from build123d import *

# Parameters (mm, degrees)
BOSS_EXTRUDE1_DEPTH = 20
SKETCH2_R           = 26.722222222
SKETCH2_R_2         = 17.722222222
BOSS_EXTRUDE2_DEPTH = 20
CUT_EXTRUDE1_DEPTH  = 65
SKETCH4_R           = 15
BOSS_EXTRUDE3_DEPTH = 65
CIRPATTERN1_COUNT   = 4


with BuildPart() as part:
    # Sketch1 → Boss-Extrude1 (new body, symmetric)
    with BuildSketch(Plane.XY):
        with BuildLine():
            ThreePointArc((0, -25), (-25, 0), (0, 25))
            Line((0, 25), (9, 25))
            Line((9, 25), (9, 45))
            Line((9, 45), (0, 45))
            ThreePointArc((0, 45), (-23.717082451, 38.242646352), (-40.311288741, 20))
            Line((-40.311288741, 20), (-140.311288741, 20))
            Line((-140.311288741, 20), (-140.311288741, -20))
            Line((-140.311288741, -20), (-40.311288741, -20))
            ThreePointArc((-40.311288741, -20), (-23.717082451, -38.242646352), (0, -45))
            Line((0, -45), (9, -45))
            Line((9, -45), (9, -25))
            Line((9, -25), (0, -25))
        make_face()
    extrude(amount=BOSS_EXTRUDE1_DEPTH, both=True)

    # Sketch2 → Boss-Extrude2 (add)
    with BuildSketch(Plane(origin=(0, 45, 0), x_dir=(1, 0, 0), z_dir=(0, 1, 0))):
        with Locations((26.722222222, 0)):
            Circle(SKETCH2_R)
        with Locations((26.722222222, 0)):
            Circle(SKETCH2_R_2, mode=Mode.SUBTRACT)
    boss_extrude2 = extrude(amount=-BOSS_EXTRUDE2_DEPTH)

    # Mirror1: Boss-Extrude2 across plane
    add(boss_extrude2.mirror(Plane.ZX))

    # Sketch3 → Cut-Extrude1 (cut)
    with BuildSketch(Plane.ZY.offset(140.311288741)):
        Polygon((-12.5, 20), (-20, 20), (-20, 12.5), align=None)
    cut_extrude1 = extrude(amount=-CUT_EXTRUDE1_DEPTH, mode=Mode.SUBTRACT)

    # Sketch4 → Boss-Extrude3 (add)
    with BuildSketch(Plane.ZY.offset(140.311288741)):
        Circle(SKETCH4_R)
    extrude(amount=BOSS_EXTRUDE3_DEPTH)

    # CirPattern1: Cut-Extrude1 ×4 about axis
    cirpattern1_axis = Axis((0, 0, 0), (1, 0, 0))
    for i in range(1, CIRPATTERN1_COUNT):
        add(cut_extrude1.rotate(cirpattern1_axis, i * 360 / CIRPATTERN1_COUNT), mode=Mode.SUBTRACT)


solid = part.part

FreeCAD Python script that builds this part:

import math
import FreeCAD as App
import Part
import Sketcher
from FreeCAD import Vector

doc = App.newDocument("Part")
body = doc.addObject("PartDesign::Body", "Body")

# Sketch on XY plane
sketch1 = body.newObject("Sketcher::SketchObject", "Sketch")
sketch1.AttachmentSupport = (doc.getObject("XY_Plane"), [""])
sketch1.MapMode = "FlatFace"
sketch1.addGeometry([
    Part.ArcOfCircle(Part.Circle(Vector(0, 0, 0), Vector(0, 0, 1), 25), math.radians(90), math.radians(270)),  # 0
    Part.LineSegment(Vector(0, 25, 0), Vector(9, 25, 0)),  # 1
    Part.LineSegment(Vector(9, 25, 0), Vector(9, 45, 0)),  # 2
    Part.LineSegment(Vector(9, 45, 0), Vector(0, 45, 0)),  # 3
    Part.ArcOfCircle(Part.Circle(Vector(0, 0, 0), Vector(0, 0, 1), 45), math.radians(90), math.radians(154)),  # 4
    Part.LineSegment(Vector(-40, 20, 0), Vector(-140, 20, 0)),  # 5
    Part.LineSegment(Vector(-140, 20, 0), Vector(-140, -20, 0)),  # 6
    Part.LineSegment(Vector(-140, -20, 0), Vector(-40, -20, 0)),  # 7
    Part.ArcOfCircle(Part.Circle(Vector(0, 0, 0), Vector(0, 0, 1), 45), math.radians(-154), math.radians(-90)),  # 8
    Part.LineSegment(Vector(0, -45, 0), Vector(9, -45, 0)),  # 9
    Part.LineSegment(Vector(9, -45, 0), Vector(9, -25, 0)),  # 10
    Part.LineSegment(Vector(9, -25, 0), Vector(0, -25, 0)),  # 11
], False)
sketch1.addConstraint([
    Sketcher.Constraint("Tangent", 0, 1, 1, 1),
    Sketcher.Constraint("Coincident", 1, 2, 2, 1),
    Sketcher.Constraint("Coincident", 2, 2, 3, 1),
    Sketcher.Constraint("Tangent", 3, 2, 4, 1),
    Sketcher.Constraint("Coincident", 4, 2, 5, 1),
    Sketcher.Constraint("Coincident", 5, 2, 6, 1),
    Sketcher.Constraint("Coincident", 6, 2, 7, 1),
    Sketcher.Constraint("Coincident", 7, 2, 8, 1),
    Sketcher.Constraint("Tangent", 8, 2, 9, 1),
    Sketcher.Constraint("Coincident", 9, 2, 10, 1),
    Sketcher.Constraint("Coincident", 10, 2, 11, 1),
    Sketcher.Constraint("Tangent", 11, 2, 0, 2),
    Sketcher.Constraint("Horizontal", 1),
    Sketcher.Constraint("Vertical", 2),
    Sketcher.Constraint("Horizontal", 3),
    Sketcher.Constraint("Horizontal", 5),
    Sketcher.Constraint("Vertical", 6),
    Sketcher.Constraint("Horizontal", 7),
    Sketcher.Constraint("Horizontal", 9),
    Sketcher.Constraint("Vertical", 10),
    Sketcher.Constraint("Horizontal", 11),
    Sketcher.Constraint("Coincident", 0, 3, -1, 1),
    Sketcher.Constraint("Coincident", 4, 3, -1, 1),
    Sketcher.Constraint("Coincident", 8, 3, -1, 1),
    Sketcher.Constraint("Equal", 4, 8),
    Sketcher.Constraint("Vertical", 4, 2, 7, 2),
    Sketcher.Constraint("Vertical", 2, 2, 9, 2),
    Sketcher.Constraint("Radius", 0, 25.0),
    Sketcher.Constraint("Radius", 4, 45.0),
    Sketcher.Constraint("DistanceX", 1, 1, 1, 2, 9.0),
    Sketcher.Constraint("DistanceX", 5, 2, 5, 1, 100.0),
    Sketcher.Constraint("DistanceY", 6, 2, 6, 1, 40.0),
])
pad1 = body.newObject("PartDesign::Pad", "Pad")
pad1.Profile = sketch1
pad1.Length = 40
pad1.Midplane = True

# Sketch on XZ plane
sketch2 = body.newObject("Sketcher::SketchObject", "Sketch001")
sketch2.AttachmentSupport = (doc.getObject("XZ_Plane"), [""])
sketch2.MapMode = "FlatFace"
sketch2.AttachmentOffset = App.Placement(Vector(0, 0, -45), App.Rotation())
sketch2.addGeometry([
    Part.Circle(Vector(27, 0, 0), Vector(0, 0, 1), 27),
    Part.Circle(Vector(27, 0, 0), Vector(0, 0, 1), 18),
], False)
sketch2.addConstraint([
    Sketcher.Constraint("Coincident", 1, 3, 0, 3),
    Sketcher.Constraint("PointOnObject", 0, 3, -1),
    Sketcher.Constraint("Diameter", 0, 53.444444),
    Sketcher.Constraint("Diameter", 1, 35.444444),
    Sketcher.Constraint("DistanceX", -1, 1, 0, 3, 26.722222),
])
pad2 = body.newObject("PartDesign::Pad", "Pad001")
pad2.Profile = sketch2
pad2.Length = 20
doc.recompute()

mirrored = body.newObject("PartDesign::Mirrored", "Mirrored")
mirrored.Originals = [pad2]
mirrored.MirrorPlane = (doc.getObject("XZ_Plane"), [""])
body.Tip = mirrored

# Sketch on YZ plane
sketch3 = body.newObject("Sketcher::SketchObject", "Sketch002")
sketch3.AttachmentSupport = (doc.getObject("YZ_Plane"), [""])
sketch3.MapMode = "FlatFace"
sketch3.AttachmentOffset = App.Placement(Vector(0, 0, -140.311289), App.Rotation())
sketch3.addGeometry([
    Part.LineSegment(Vector(20, -12, 0), Vector(20, -20, 0)),
    Part.LineSegment(Vector(20, -20, 0), Vector(12, -20, 0)),
    Part.LineSegment(Vector(12, -20, 0), Vector(20, -12, 0)),
], False)
sketch3.addConstraint([
    Sketcher.Constraint("Coincident", 0, 2, 1, 1),
    Sketcher.Constraint("Coincident", 1, 2, 2, 1),
    Sketcher.Constraint("Coincident", 2, 2, 0, 1),
    Sketcher.Constraint("Vertical", 0),
    Sketcher.Constraint("Horizontal", 1),
    Sketcher.Constraint("Equal", 1, 0),
    Sketcher.Constraint("DistanceX", 1, 2, 1, 1, 7.5),
    Sketcher.Constraint("DistanceX", -1, 1, 0, 2, 20.0),
    Sketcher.Constraint("DistanceY", 0, 2, -1, 1, 20.0),
])
pocket1 = body.newObject("PartDesign::Pocket", "Pocket")
pocket1.Profile = sketch3
pocket1.Length = 65
pocket1.Reversed = True

# Sketch on YZ plane
sketch4 = body.newObject("Sketcher::SketchObject", "Sketch003")
sketch4.AttachmentSupport = (doc.getObject("YZ_Plane"), [""])
sketch4.MapMode = "FlatFace"
sketch4.AttachmentOffset = App.Placement(Vector(0, 0, -140.311289), App.Rotation())
sketch4.addGeometry(Part.Circle(Vector(0, 0, 0), Vector(0, 0, 1), 15), False)
sketch4.addConstraint([
    Sketcher.Constraint("Coincident", 0, 3, -1, 1),
    Sketcher.Constraint("Diameter", 0, 30.0),
])
pad3 = body.newObject("PartDesign::Pad", "Pad002")
pad3.Profile = sketch4
pad3.Length = 65
pad3.Reversed = True
doc.recompute()

polarpattern = body.newObject("PartDesign::PolarPattern", "PolarPattern")
polarpattern.Originals = [pocket1]
polarpattern.Axis = (doc.getObject("X_Axis"), [""])
polarpattern.Angle = 360
polarpattern.Occurrences = 4
body.Tip = polarpattern

doc.recompute()
